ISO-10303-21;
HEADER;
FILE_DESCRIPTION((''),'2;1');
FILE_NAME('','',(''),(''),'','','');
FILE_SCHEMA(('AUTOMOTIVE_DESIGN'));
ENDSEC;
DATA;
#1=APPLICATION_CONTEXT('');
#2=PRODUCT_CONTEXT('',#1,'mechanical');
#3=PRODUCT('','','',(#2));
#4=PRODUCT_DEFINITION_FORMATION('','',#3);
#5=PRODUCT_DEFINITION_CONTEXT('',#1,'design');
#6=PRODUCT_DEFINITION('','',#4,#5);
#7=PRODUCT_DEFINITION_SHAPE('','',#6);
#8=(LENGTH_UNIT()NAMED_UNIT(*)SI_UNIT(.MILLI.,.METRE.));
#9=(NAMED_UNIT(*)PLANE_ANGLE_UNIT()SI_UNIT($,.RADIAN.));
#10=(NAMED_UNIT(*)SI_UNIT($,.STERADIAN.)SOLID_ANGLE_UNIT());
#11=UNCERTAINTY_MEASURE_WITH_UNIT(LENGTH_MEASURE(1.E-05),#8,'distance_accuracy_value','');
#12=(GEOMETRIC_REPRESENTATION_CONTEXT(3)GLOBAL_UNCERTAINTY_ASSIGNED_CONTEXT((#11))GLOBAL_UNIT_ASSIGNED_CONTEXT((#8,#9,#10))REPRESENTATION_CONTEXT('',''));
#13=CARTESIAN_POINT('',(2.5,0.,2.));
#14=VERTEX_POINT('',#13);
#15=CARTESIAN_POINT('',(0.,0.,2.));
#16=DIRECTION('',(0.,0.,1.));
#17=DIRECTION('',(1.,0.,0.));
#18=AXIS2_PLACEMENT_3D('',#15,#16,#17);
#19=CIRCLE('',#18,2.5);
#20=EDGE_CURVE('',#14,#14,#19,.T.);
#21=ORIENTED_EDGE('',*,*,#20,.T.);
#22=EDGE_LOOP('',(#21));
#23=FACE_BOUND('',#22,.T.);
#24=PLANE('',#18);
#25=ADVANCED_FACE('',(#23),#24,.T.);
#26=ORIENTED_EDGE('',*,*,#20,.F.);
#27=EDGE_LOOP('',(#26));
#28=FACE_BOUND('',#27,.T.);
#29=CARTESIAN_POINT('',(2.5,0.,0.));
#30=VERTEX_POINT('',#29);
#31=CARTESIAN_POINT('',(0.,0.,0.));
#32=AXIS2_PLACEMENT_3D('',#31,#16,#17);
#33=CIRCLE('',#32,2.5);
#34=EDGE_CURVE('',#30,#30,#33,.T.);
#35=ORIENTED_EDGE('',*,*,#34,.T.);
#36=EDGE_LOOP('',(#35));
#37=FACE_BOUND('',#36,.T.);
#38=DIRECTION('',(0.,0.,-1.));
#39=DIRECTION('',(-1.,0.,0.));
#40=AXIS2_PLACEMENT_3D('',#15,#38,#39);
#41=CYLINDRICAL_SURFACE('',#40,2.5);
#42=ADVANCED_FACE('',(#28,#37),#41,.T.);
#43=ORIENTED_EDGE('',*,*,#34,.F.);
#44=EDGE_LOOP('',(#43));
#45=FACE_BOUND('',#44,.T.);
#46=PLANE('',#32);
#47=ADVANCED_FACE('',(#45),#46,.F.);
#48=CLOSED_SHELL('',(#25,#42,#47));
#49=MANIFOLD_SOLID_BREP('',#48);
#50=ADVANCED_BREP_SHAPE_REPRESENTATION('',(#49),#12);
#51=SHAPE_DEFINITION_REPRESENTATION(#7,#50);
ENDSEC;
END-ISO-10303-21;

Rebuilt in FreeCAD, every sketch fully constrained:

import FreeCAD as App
import Part
import Sketcher

V = App.Vector
Q = App.Units.Quantity

doc = App.newDocument("Part")
body = doc.addObject("PartDesign::Body", "Body")

# Sketch on XY plane
sketch1 = body.newObject("Sketcher::SketchObject", "Sketch")
sketch1.AttachmentSupport = (doc.getObject("XY_Plane"), [""])
sketch1.MapMode = "FlatFace"
sketch1.addGeometry(Part.Circle(V(0, 0, 0), V(0, 0, 1), 2.5), False)
sketch1.addConstraint([
    Sketcher.Constraint("Coincident", 0, 3, -1, 1),
    Sketcher.Constraint("Diameter", 0, Q("5 mm")),
])
pad1 = body.newObject("PartDesign::Pad", "Pad")
pad1.Profile = sketch1
pad1.Length = 2

doc.recompute()
